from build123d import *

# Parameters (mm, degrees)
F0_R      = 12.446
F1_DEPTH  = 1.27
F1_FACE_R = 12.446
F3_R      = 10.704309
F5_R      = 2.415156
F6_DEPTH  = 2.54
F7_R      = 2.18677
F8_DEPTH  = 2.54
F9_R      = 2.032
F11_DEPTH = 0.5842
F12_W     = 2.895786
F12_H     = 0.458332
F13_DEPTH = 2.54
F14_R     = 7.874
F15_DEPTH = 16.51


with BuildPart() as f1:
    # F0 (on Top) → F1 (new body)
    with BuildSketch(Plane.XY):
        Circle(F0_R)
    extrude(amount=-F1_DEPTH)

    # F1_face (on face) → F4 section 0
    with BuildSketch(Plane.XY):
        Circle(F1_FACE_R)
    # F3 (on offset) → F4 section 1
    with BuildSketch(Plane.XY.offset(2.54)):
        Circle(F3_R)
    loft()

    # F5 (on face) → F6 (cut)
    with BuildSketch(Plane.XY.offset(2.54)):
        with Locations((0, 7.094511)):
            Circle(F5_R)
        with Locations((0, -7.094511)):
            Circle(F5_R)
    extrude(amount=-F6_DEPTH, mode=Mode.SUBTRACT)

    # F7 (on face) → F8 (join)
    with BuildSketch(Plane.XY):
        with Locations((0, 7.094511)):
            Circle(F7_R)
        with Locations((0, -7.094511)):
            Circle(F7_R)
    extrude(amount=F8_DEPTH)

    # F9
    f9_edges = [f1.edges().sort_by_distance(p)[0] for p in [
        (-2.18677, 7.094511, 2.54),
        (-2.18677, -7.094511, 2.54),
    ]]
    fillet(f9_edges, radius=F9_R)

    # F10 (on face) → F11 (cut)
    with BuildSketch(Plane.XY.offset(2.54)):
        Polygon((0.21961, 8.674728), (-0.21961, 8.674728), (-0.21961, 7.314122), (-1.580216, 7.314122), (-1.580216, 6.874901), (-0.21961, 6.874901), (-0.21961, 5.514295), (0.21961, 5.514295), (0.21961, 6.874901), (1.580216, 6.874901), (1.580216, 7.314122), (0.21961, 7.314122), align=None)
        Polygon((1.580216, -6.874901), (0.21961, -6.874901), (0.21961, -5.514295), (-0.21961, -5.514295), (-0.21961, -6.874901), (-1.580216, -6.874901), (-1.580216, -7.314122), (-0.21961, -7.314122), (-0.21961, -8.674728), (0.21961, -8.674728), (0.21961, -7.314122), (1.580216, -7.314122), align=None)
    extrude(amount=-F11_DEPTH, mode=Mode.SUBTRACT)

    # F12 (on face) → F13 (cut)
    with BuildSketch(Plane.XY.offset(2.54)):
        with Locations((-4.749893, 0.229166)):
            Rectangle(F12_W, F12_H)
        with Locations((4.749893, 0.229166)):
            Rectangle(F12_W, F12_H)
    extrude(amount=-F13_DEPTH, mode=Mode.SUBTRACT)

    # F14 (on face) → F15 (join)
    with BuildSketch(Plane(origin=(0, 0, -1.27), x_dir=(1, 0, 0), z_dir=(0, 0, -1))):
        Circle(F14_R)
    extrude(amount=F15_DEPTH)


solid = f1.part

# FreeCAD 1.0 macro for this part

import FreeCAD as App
import Part
import Sketcher

V = App.Vector
Q = App.Units.Quantity


def edges_at(feature, points):
    """Names of the edges that pass closest to the given points."""
    edges = feature.Shape.Edges
    near = lambda p: min(range(len(edges)), key=lambda i: edges[i].distToShape(Part.Vertex(*p))[0])
    return sorted({f"Edge{near(p) + 1}" for p in points})


def add_polygon(sketch, points):
    """Adds a closed chain of lines whose ends are joined by coincident constraints."""
    first, n = sketch.GeometryCount, len(points)
    for a, b in zip(points, points[1:] + points[:1]):
        sketch.addGeometry(Part.LineSegment(App.Vector(*a, 0), App.Vector(*b, 0)), False)
    for i in range(n):
        sketch.addConstraint(Sketcher.Constraint("Coincident", first + i, 2, first + (i + 1) % n, 1))

doc = App.newDocument("Part")
body = doc.addObject("PartDesign::Body", "Body")

# Sketch on XY plane
sketch1 = doc.addObject("Sketcher::SketchObject", "Sketch")
body.addObject(sketch1)
sketch1.AttachmentSupport = (doc.XY_Plane, [""])
sketch1.MapMode = "FlatFace"
sketch1.addGeometry(Part.Circle(V(0, 0, 0), V(0, 0, 1), 12), False)
sketch1.addConstraint([
    Sketcher.Constraint("Coincident", 0, 3, -1, 1),
    Sketcher.Constraint("Diameter", 0, Q("0.98 in")),
])
pad1 = doc.addObject("PartDesign::Pad", "Pad")
body.addObject(pad1)
pad1.Profile = sketch1
pad1.Length = Q("0.05 in")
pad1.Reversed = True

# Sketch on XY plane
sketch2 = doc.addObject("Sketcher::SketchObject", "Sketch001")
body.addObject(sketch2)
sketch2.AttachmentSupport = (doc.XY_Plane, [""])
sketch2.MapMode = "FlatFace"
sketch2.addGeometry(Part.Circle(V(0, 0, 0), V(0, 0, 1), 12), False)
sketch2.addConstraint([
    Sketcher.Constraint("Coincident", 0, 3, -1, 1),
    Sketcher.Constraint("Diameter", 0, Q("0.98 in")),
])

# Sketch on XY plane
sketch3 = doc.addObject("Sketcher::SketchObject", "Sketch002")
body.addObject(sketch3)
sketch3.AttachmentSupport = (doc.XY_Plane, [""])
sketch3.MapMode = "FlatFace"
sketch3.AttachmentOffset = App.Placement(V(0, 0, 0.1 * 25.4), App.Rotation())
sketch3.addGeometry(Part.Circle(V(0, 0, 0), V(0, 0, 1), 11), False)
sketch3.addConstraint([
    Sketcher.Constraint("Coincident", 0, 3, -1, 1),
    Sketcher.Constraint("Diameter", 0, Q("21.408618 mm")),
])

additiveloft = doc.addObject("PartDesign::AdditiveLoft", "AdditiveLoft")
body.addObject(additiveloft)
additiveloft.Profile = sketch2
additiveloft.Sections = [sketch3]

# Sketch on XY plane
sketch4 = doc.addObject("Sketcher::SketchObject", "Sketch003")
body.addObject(sketch4)
sketch4.AttachmentSupport = (doc.XY_Plane, [""])
sketch4.MapMode = "FlatFace"
sketch4.AttachmentOffset = App.Placement(V(0, 0, 0.1 * 25.4), App.Rotation())
sketch4.addGeometry([
    Part.Circle(V(0, 7.1, 0), V(0, 0, 1), 2.4),
    Part.Circle(V(0, -7.1, 0), V(0, 0, 1), 2.4),
], False)
sketch4.addConstraint([
    Sketcher.Constraint("Equal", 0, 1),
    Sketcher.Constraint("Symmetric", 0, 3, 1, 3, -1, 1),
    Sketcher.Constraint("PointOnObject", 0, 3, -2),
    Sketcher.Constraint("Diameter", 0, Q("4.830312 mm")),
    Sketcher.Constraint("DistanceY", -1, 1, 0, 3, Q("7.094511 mm")),
])
pocket1 = doc.addObject("PartDesign::Pocket", "Pocket")
body.addObject(pocket1)
pocket1.Profile = sketch4
pocket1.Length = Q("0.1 in")

# Sketch on XY plane
sketch5 = doc.addObject("Sketcher::SketchObject", "Sketch004")
body.addObject(sketch5)
sketch5.AttachmentSupport = (doc.XY_Plane, [""])
sketch5.MapMode = "FlatFace"
sketch5.addGeometry([
    Part.Circle(V(0, 7.1, 0), V(0, 0, 1), 2.2),
    Part.Circle(V(0, -7.1, 0), V(0, 0, 1), 2.2),
], False)
sketch5.addConstraint([
    Sketcher.Constraint("Equal", 0, 1),
    Sketcher.Constraint("Symmetric", 0, 3, 1, 3, -1, 1),
    Sketcher.Constraint("PointOnObject", 0, 3, -2),
    Sketcher.Constraint("Diameter", 0, Q("4.37354 mm")),
    Sketcher.Constraint("DistanceY", -1, 1, 0, 3, Q("7.094511 mm")),
])
pad2 = doc.addObject("PartDesign::Pad", "Pad001")
body.addObject(pad2)
pad2.Profile = sketch5
pad2.Length = Q("0.1 in")
doc.recompute()

fillet = doc.addObject("PartDesign::Fillet", "Fillet")
body.addObject(fillet)
fillet.Base = (pad2, edges_at(pad2, [(-2.187, 7.095, 2.54), (-2.187, -7.095, 2.54)]))
fillet.Radius = Q("0.08 in")

# Sketch on XY plane
sketch6 = doc.addObject("Sketcher::SketchObject", "Sketch005")
body.addObject(sketch6)
sketch6.AttachmentSupport = (doc.XY_Plane, [""])
sketch6.MapMode = "FlatFace"
sketch6.AttachmentOffset = App.Placement(V(0, 0, 0.1 * 25.4), App.Rotation())
add_polygon(sketch6, [(0.22, 8.67), (-0.22, 8.67), (-0.22, 7.31), (-1.58, 7.31), (-1.58, 6.87), (-0.22, 6.87), (-0.22, 5.51), (0.22, 5.51), (0.22, 6.87), (1.58, 6.87), (1.58, 7.31), (0.22, 7.31)])  # lines 0-11
add_polygon(sketch6, [(1.58, -6.87), (0.22, -6.87), (0.22, -5.51), (-0.22, -5.51), (-0.22, -6.87), (-1.58, -6.87), (-1.58, -7.31), (-0.22, -7.31), (-0.22, -8.67), (0.22, -8.67), (0.22, -7.31), (1.58, -7.31)])  # lines 12-23
sketch6.addConstraint([
    Sketcher.Constraint("Horizontal", 0),
    Sketcher.Constraint("Vertical", 1),
    Sketcher.Constraint("Horizontal", 2),
    Sketcher.Constraint("Vertical", 3),
    Sketcher.Constraint("Horizontal", 4),
    Sketcher.Constraint("Vertical", 5),
    Sketcher.Constraint("Horizontal", 6),
    Sketcher.Constraint("Vertical", 7),
    Sketcher.Constraint("Horizontal", 8),
    Sketcher.Constraint("Vertical", 9),
    Sketcher.Constraint("Horizontal", 10),
    Sketcher.Constraint("Vertical", 11),
    Sketcher.Constraint("Horizontal", 12),
    Sketcher.Constraint("Vertical", 13),
    Sketcher.Constraint("Horizontal", 14),
    Sketcher.Constraint("Vertical", 15),
    Sketcher.Constraint("Horizontal", 16),
    Sketcher.Constraint("Vertical", 17),
    Sketcher.Constraint("Horizontal", 18),
    Sketcher.Constraint("Vertical", 19),
    Sketcher.Constraint("Horizontal", 20),
    Sketcher.Constraint("Vertical", 21),
    Sketcher.Constraint("Horizontal", 22),
    Sketcher.Constraint("Vertical", 23),
    Sketcher.Constraint("Symmetric", 4, 2, 12, 2, -1, 1),
    Sketcher.Constraint("Symmetric", 6, 2, 14, 2, -1, 1),
    Sketcher.Constraint("Symmetric", 8, 2, 16, 2, -1, 1),
    Sketcher.Constraint("Symmetric", 10, 2, 18, 2, -1, 1),
    Sketcher.Constraint("Symmetric", 0, 2, 20, 2, -1, 1),
    Sketcher.Constraint("Symmetric", 2, 2, 22, 2, -1, 1),
    Sketcher.Constraint("Symmetric", 4, 2, 7, 2, -2),
    Sketcher.Constraint("Symmetric", 2, 2, 9, 2, -2),
    Sketcher.Constraint("Vertical", 1, 2, 4, 2),
    Sketcher.Constraint("Vertical", 7, 2, 10, 2),
    Sketcher.Constraint("Equal", 22, 1),
    Sketcher.Constraint("Equal", 20, 3),
    Sketcher.Constraint("Equal", 1, 5),
    Sketcher.Constraint("DistanceX", 0, 2, 0, 1, Q("0.43922 mm")),
    Sketcher.Constraint("DistanceY", -1, 1, 3, 2, Q("6.874901 mm")),
    Sketcher.Constraint("DistanceX", 2, 2, 2, 1, Q("1.360606 mm")),
])
pocket2 = doc.addObject("PartDesign::Pocket", "Pocket001")
body.addObject(pocket2)
pocket2.Profile = sketch6
pocket2.Length = Q("0.023 in")

# Sketch on XY plane
sketch7 = doc.addObject("Sketcher::SketchObject", "Sketch006")
body.addObject(sketch7)
sketch7.AttachmentSupport = (doc.XY_Plane, [""])
sketch7.MapMode = "FlatFace"
sketch7.AttachmentOffset = App.Placement(V(0, 0, 0.1 * 25.4), App.Rotation())
add_polygon(sketch7, [(-6.2, 0.46), (-6.2, 0), (-3.3, 0), (-3.3, 0.46)])  # lines 0-3
add_polygon(sketch7, [(3.3, 0.46), (3.3, 0), (6.2, 0), (6.2, 0.46)])  # lines 4-7
sketch7.addConstraint([
    Sketcher.Constraint("Vertical", 0),
    Sketcher.Constraint("Horizontal", 1),
    Sketcher.Constraint("Vertical", 2),
    Sketcher.Constraint("Horizontal", 3),
    Sketcher.Constraint("Vertical", 4),
    Sketcher.Constraint("Horizontal", 5),
    Sketcher.Constraint("Vertical", 6),
    Sketcher.Constraint("Horizontal", 7),
    Sketcher.Constraint("Symmetric", 1, 2, 4, 2, -1, 1),
    Sketcher.Constraint("Symmetric", 0, 2, 5, 2, -2),
    Sketcher.Constraint("Horizontal", 3, 2, 6, 2),
    Sketcher.Constraint("DistanceX", 1, 2, -1, 1, Q("0.13 in")),
    Sketcher.Constraint("DistanceX", 1, 1, 1, 2, Q("2.895786 mm")),
    Sketcher.Constraint("DistanceY", 0, 2, 0, 1, Q("0.458332 mm")),
])
pocket3 = doc.addObject("PartDesign::Pocket", "Pocket002")
body.addObject(pocket3)
pocket3.Profile = sketch7
pocket3.Length = Q("0.1 in")

# Sketch on XY plane
sketch8 = doc.addObject("Sketcher::SketchObject", "Sketch007")
body.addObject(sketch8)
sketch8.AttachmentSupport = (doc.XY_Plane, [""])
sketch8.MapMode = "FlatFace"
sketch8.AttachmentOffset = App.Placement(V(0, 0, -0.05 * 25.4), App.Rotation())
sketch8.addGeometry(Part.Circle(V(0, 0, 0), V(0, 0, 1), 8), False)
sketch8.addConstraint([
    Sketcher.Constraint("Coincident", 0, 3, -1, 1),
    Sketcher.Constraint("Diameter", 0, Q("0.62 in")),
])
pad3 = doc.addObject("PartDesign::Pad", "Pad002")
body.addObject(pad3)
pad3.Profile = sketch8
pad3.Length = Q("0.65 in")
pad3.Reversed = True

doc.recompute()
